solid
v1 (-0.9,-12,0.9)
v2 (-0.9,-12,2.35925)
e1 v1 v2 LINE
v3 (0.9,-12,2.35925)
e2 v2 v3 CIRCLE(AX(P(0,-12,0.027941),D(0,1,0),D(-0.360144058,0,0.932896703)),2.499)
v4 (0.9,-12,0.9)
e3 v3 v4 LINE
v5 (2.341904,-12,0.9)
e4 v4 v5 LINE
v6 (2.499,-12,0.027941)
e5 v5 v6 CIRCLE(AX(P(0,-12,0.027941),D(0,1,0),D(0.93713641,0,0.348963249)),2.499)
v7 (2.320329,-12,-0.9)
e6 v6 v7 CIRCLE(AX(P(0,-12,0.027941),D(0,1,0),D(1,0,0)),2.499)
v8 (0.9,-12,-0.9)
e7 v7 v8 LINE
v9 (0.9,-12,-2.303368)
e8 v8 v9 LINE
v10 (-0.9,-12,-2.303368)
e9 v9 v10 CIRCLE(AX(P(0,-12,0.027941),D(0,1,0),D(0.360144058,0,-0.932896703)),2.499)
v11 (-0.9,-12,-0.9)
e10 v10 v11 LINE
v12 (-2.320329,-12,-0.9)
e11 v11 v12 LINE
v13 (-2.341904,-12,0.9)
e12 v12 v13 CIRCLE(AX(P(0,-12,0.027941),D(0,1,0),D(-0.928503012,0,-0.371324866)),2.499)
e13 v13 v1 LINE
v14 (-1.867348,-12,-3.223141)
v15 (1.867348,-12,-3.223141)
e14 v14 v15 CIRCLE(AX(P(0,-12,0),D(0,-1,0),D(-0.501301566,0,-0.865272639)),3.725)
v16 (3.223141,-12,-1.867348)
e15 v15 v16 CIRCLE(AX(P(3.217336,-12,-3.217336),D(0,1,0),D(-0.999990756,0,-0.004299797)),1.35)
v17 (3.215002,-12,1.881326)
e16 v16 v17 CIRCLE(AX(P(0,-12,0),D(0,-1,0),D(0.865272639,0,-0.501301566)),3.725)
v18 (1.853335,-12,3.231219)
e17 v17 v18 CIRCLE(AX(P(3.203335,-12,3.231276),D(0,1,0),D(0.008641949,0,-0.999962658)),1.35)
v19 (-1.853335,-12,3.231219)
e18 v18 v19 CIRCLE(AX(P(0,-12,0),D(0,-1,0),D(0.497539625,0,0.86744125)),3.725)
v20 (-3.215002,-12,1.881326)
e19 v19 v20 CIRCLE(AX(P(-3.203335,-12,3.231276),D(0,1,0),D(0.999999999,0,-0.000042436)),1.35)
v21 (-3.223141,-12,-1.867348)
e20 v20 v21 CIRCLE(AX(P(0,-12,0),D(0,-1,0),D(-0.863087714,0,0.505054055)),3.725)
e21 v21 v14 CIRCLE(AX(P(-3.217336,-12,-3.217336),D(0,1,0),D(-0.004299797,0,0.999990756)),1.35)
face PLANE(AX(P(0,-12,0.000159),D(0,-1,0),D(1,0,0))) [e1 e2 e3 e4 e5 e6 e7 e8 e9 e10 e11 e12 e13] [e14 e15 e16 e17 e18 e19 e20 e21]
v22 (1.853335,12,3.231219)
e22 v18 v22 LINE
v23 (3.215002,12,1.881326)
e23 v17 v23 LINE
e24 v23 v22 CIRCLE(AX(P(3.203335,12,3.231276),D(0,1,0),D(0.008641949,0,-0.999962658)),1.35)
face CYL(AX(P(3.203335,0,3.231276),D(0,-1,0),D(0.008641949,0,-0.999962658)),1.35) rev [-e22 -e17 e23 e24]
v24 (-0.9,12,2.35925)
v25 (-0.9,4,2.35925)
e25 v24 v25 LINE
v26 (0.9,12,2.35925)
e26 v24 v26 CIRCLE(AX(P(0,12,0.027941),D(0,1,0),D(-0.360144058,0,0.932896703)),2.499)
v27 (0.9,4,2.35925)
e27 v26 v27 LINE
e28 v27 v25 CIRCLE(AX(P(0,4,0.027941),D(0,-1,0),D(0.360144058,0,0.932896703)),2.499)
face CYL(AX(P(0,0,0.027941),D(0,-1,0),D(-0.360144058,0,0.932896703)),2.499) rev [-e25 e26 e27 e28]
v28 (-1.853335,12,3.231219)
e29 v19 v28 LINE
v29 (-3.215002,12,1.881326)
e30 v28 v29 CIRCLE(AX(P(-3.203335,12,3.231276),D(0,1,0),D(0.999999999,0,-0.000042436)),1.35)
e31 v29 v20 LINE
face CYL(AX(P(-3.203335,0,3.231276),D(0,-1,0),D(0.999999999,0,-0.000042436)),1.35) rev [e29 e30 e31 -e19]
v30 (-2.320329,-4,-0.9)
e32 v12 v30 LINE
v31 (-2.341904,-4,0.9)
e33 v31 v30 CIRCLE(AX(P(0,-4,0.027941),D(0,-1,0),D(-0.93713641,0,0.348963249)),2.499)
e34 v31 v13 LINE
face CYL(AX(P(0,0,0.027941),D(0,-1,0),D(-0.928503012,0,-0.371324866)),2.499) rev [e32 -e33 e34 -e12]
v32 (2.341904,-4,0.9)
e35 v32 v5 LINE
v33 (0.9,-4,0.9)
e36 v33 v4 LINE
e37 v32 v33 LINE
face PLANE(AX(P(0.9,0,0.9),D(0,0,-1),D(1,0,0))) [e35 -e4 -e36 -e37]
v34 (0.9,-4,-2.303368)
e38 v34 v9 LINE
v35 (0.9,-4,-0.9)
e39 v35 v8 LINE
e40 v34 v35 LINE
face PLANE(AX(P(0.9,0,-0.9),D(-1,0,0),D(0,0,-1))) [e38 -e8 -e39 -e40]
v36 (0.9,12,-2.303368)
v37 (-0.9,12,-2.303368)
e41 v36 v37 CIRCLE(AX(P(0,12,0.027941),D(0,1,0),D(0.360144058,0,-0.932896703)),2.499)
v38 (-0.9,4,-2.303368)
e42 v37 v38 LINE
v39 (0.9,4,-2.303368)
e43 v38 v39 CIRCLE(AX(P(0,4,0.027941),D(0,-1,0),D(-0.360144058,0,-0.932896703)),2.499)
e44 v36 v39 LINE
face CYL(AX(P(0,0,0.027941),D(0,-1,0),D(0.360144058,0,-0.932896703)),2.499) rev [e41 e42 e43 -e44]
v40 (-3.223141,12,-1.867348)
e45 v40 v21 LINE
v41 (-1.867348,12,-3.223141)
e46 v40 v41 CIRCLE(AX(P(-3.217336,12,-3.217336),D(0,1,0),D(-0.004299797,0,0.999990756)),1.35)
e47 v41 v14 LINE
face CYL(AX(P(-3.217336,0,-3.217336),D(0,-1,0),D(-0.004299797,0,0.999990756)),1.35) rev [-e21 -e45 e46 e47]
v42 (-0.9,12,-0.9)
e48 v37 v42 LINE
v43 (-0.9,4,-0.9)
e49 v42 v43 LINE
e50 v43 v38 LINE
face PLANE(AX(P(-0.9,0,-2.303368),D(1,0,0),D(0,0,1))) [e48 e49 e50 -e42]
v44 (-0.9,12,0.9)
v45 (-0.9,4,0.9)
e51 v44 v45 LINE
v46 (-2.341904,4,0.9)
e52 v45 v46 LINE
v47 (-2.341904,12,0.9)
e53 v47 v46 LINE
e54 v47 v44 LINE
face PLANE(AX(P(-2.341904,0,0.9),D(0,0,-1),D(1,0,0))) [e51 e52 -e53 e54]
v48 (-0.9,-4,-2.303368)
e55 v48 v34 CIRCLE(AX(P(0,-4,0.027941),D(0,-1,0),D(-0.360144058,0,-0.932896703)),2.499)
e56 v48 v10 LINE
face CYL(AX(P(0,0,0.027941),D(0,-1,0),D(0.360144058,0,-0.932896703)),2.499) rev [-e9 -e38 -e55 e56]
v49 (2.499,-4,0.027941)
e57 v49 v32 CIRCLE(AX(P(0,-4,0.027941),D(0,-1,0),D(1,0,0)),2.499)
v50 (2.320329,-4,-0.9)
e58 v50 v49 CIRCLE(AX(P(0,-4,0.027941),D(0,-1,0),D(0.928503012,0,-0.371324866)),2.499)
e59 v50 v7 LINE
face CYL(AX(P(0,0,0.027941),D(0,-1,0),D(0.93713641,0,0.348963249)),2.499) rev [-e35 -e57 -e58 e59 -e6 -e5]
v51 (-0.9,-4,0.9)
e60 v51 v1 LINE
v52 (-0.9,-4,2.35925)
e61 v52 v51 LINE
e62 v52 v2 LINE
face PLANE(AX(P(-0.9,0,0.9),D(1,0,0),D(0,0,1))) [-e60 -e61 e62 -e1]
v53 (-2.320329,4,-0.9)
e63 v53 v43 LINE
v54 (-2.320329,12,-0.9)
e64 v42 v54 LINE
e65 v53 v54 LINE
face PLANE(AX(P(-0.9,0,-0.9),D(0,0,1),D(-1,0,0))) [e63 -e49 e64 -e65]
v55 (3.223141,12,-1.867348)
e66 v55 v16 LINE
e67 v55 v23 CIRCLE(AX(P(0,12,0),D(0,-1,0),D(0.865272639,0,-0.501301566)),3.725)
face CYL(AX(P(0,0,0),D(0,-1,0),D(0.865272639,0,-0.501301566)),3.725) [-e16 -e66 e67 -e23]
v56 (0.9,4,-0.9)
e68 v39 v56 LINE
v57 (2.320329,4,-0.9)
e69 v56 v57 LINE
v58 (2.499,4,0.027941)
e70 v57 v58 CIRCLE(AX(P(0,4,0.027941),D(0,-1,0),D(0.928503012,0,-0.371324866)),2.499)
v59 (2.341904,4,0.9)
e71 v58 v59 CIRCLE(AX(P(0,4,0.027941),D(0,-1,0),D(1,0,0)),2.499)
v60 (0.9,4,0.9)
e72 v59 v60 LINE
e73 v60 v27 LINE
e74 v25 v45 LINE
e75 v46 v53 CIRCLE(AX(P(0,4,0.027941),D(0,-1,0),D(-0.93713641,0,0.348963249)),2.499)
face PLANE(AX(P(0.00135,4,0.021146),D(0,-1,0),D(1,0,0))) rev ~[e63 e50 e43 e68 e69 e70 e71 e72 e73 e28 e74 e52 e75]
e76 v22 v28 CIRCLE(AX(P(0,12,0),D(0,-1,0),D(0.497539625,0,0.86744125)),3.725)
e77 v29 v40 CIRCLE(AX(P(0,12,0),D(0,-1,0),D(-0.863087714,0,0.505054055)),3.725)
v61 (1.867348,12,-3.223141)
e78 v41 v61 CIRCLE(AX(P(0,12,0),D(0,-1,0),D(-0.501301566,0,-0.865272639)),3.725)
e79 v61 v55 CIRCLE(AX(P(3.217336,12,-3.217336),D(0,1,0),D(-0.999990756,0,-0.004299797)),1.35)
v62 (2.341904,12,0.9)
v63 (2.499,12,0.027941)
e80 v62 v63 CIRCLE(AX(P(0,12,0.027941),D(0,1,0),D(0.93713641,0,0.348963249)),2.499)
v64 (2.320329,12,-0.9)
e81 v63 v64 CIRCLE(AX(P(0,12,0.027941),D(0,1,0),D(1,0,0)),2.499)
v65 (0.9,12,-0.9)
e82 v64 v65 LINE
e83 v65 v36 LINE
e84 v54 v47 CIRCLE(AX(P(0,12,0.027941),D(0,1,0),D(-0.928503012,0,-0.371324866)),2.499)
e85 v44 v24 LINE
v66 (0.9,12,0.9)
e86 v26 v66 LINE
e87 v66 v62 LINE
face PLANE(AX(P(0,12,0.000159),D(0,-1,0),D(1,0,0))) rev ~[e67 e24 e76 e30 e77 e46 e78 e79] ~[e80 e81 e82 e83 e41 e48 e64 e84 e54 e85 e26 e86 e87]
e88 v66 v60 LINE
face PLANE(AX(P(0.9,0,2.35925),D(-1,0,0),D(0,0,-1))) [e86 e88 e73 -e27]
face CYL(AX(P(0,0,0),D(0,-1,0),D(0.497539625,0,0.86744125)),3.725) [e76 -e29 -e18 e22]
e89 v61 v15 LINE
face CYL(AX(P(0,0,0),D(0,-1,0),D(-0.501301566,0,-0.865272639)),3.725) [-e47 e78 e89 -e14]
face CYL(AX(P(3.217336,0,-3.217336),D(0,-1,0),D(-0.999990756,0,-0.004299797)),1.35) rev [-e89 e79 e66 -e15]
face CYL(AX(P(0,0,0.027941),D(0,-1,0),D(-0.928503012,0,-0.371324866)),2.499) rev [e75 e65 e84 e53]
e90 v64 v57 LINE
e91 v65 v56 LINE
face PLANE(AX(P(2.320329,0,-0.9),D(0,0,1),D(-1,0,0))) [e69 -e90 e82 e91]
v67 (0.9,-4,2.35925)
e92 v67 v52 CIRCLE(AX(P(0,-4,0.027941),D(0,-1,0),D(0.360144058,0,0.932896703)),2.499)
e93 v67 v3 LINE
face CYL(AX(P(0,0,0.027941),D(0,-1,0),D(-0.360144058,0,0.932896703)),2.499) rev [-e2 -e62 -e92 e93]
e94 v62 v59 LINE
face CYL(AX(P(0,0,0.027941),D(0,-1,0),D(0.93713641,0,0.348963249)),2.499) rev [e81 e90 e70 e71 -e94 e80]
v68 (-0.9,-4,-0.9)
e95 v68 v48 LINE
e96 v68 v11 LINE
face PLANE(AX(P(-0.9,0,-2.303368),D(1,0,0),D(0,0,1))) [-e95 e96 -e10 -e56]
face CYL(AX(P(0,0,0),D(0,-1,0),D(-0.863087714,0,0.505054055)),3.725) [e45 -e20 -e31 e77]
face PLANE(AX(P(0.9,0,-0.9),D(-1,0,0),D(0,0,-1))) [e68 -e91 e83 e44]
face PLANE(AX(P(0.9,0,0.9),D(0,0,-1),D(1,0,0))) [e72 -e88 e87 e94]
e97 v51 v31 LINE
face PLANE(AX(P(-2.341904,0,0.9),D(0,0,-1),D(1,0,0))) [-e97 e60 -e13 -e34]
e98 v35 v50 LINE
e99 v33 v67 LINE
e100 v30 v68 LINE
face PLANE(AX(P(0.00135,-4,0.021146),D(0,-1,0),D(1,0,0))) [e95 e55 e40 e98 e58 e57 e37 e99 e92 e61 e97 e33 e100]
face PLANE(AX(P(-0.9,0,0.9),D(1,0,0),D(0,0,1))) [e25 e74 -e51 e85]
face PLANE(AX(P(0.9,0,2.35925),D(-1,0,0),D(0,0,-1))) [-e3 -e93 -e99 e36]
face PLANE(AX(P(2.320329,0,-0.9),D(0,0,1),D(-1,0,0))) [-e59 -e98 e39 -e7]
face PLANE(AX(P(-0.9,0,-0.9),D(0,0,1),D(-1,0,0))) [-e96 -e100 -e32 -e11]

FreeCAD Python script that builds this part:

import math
import FreeCAD as App
import Part
import Sketcher

V = App.Vector

doc = App.newDocument("Part")
params = doc.addObject("Spreadsheet::Sheet", "Params")
for row, (alias, value) in enumerate([
    ("sketch1_radius", "1.35 mm"),
    ("pad1_length", "24 mm"),
    ("pad2_length", "8 mm"),
], start=1):
    params.set(f"A{row}", alias)
    params.set(f"B{row}", "=" + value)
    params.setAlias(f"B{row}", alias)

body = doc.addObject("PartDesign::Body", "Body")

# Sketch on XZ plane
sketch1 = body.newObject("Sketcher::SketchObject", "Sketch")
sketch1.AttachmentSupport = (doc.getObject("XZ_Plane"), [""])
sketch1.MapMode = "FlatFace"
sketch1.addGeometry([
    Part.ArcOfCircle(Part.Circle(V(-3.2, 3.2, 0), V(0, 0, 1), 1.4), math.radians(-90), math.radians(0)),  # 0
    Part.ArcOfCircle(Part.Circle(V(0, 0, 0), V(0, 0, 1), 3.7), math.radians(150), math.radians(210)),  # 1
    Part.ArcOfCircle(Part.Circle(V(-3.2, -3.2, 0), V(0, 0, 1), 1.4), math.radians(0), math.radians(90)),  # 2
    Part.ArcOfCircle(Part.Circle(V(0, 0, 0), V(0, 0, 1), 3.7), math.radians(-120), math.radians(-60)),  # 3
    Part.ArcOfCircle(Part.Circle(V(3.2, -3.2, 0), V(0, 0, 1), 1.4), math.radians(90), math.radians(180)),  # 4
    Part.ArcOfCircle(Part.Circle(V(0, 0, 0), V(0, 0, 1), 3.7), math.radians(-30), math.radians(30)),  # 5
    Part.ArcOfCircle(Part.Circle(V(3.2, 3.2, 0), V(0, 0, 1), 1.4), math.radians(-180), math.radians(-90)),  # 6
    Part.ArcOfCircle(Part.Circle(V(0, 0, 0), V(0, 0, 1), 3.7), math.radians(60), math.radians(120)),  # 7
    Part.ArcOfCircle(Part.Circle(V(0, 0, 0), V(0, 0, 1), 2.5), math.radians(160), math.radians(202)),  # 8
    Part.LineSegment(V(-2.3, 0.9, 0), V(-0.9, 0.9, 0)),  # 9
    Part.LineSegment(V(-0.9, 0.9, 0), V(-0.9, 2.4, 0)),  # 10
    Part.ArcOfCircle(Part.Circle(V(0, 0, 0), V(0, 0, 1), 2.5), math.radians(69), math.radians(111)),  # 11
    Part.LineSegment(V(0.9, 2.4, 0), V(0.9, 0.9, 0)),  # 12
    Part.LineSegment(V(0.9, 0.9, 0), V(2.3, 0.9, 0)),  # 13
    Part.ArcOfCircle(Part.Circle(V(0, 0, 0), V(0, 0, 1), 2.5), math.radians(0), math.radians(20)),  # 14
    Part.ArcOfCircle(Part.Circle(V(0, 0, 0), V(0, 0, 1), 2.5), math.radians(-22), math.radians(0)),  # 15
    Part.LineSegment(V(2.3, -0.9, 0), V(0.9, -0.9, 0)),  # 16
    Part.LineSegment(V(0.9, -0.9, 0), V(0.9, -2.3, 0)),  # 17
    Part.ArcOfCircle(Part.Circle(V(0, 0, 0), V(0, 0, 1), 2.5), math.radians(-111), math.radians(-69)),  # 18
    Part.LineSegment(V(-0.9, -2.3, 0), V(-0.9, -0.9, 0)),  # 19
    Part.LineSegment(V(-0.9, -0.9, 0), V(-2.3, -0.9, 0)),  # 20
], False)
sketch1.addConstraint([
    Sketcher.Constraint("Coincident", 0, 1, 1, 1),
    Sketcher.Constraint("Coincident", 1, 2, 2, 2),
    Sketcher.Constraint("Coincident", 2, 1, 3, 1),
    Sketcher.Constraint("Coincident", 3, 2, 4, 2),
    Sketcher.Constraint("Coincident", 4, 1, 5, 1),
    Sketcher.Constraint("Coincident", 5, 2, 6, 2),
    Sketcher.Constraint("Coincident", 6, 1, 7, 1),
    Sketcher.Constraint("Coincident", 7, 2, 0, 2),
    Sketcher.Constraint("Coincident", 8, 1, 9, 1),
    Sketcher.Constraint("Coincident", 9, 2, 10, 1),
    Sketcher.Constraint("Coincident", 10, 2, 11, 2),
    Sketcher.Constraint("Coincident", 11, 1, 12, 1),
    Sketcher.Constraint("Coincident", 12, 2, 13, 1),
    Sketcher.Constraint("Coincident", 13, 2, 14, 2),
    Sketcher.Constraint("Tangent", 14, 1, 15, 2),
    Sketcher.Constraint("Coincident", 15, 1, 16, 1),
    Sketcher.Constraint("Coincident", 16, 2, 17, 1),
    Sketcher.Constraint("Coincident", 17, 2, 18, 2),
    Sketcher.Constraint("Coincident", 18, 1, 19, 1),
    Sketcher.Constraint("Coincident", 19, 2, 20, 1),
    Sketcher.Constraint("Coincident", 20, 2, 8, 2),
    Sketcher.Constraint("Horizontal", 9),
    Sketcher.Constraint("Vertical", 10),
    Sketcher.Constraint("Vertical", 12),
    Sketcher.Constraint("Horizontal", 13),
    Sketcher.Constraint("Horizontal", 16),
    Sketcher.Constraint("Vertical", 17),
    Sketcher.Constraint("Vertical", 19),
    Sketcher.Constraint("Horizontal", 20),
    Sketcher.Constraint("Coincident", 1, 3, -1, 1),
    Sketcher.Constraint("Coincident", 3, 3, -1, 1),
    Sketcher.Constraint("Coincident", 5, 3, -1, 1),
    Sketcher.Constraint("Coincident", 7, 3, -1, 1),
    Sketcher.Constraint("Coincident", 11, 3, 8, 3),
    Sketcher.Constraint("Coincident", 14, 3, 8, 3),
    Sketcher.Constraint("Coincident", 18, 3, 8, 3),
    Sketcher.Constraint("Equal", 0, 2),
    Sketcher.Constraint("Equal", 1, 3),
    Sketcher.Constraint("Equal", 2, 4),
    Sketcher.Constraint("Equal", 3, 5),
    Sketcher.Constraint("Equal", 4, 6),
    Sketcher.Constraint("Equal", 5, 7),
    Sketcher.Constraint("Equal", 8, 11),
    Sketcher.Constraint("Equal", 11, 14),
    Sketcher.Constraint("Equal", 14, 15),
    Sketcher.Constraint("Equal", 15, 18),
    Sketcher.Constraint("Symmetric", 9, 2, 16, 2, -1, 1),
    Sketcher.Constraint("Symmetric", 12, 2, 19, 2, -1, 1),
    Sketcher.Constraint("Symmetric", 2, 3, 4, 3, -2),
    Sketcher.Constraint("Symmetric", 0, 3, 6, 3, -2),
    Sketcher.Constraint("Symmetric", 10, 2, 11, 1, -2),
    Sketcher.Constraint("Horizontal", 9, 2, 12, 2),
    Sketcher.Constraint("Horizontal", 18, 3, 14, 1),
    Sketcher.Constraint("Radius", 0, 1.35),
    Sketcher.Constraint("Radius", 1, 3.725),
    Sketcher.Constraint("Radius", 8, 2.499),
    Sketcher.Constraint("DistanceY", -1, 1, 8, 1, 0.9),
    Sketcher.Constraint("DistanceX", 9, 2, -1, 1, 0.9),
    Sketcher.Constraint("DistanceX", 0, 1, -1, 1, 3.215002),
    Sketcher.Constraint("DistanceX", 2, 3, 0, 3, 0.014001),
    Sketcher.Constraint("DistanceX", 16, 2, 16, 1, 1.420329),
    Sketcher.Constraint("DistanceX", 1, 2, -1, 1, 3.223141),
    Sketcher.Constraint("DistanceX", 2, 1, -1, 1, 1.867348),
])
sketch1.setExpression("Constraints[53]", "Params.sketch1_radius")
pad1 = body.newObject("PartDesign::Pad", "Pad")
pad1.Profile = sketch1
pad1.setExpression("Length", "Params.pad1_length")
pad1.Midplane = True

# Sketch on XZ plane
sketch2 = body.newObject("Sketcher::SketchObject", "Sketch001")
sketch2.AttachmentSupport = (doc.getObject("XZ_Plane"), [""])
sketch2.MapMode = "FlatFace"
sketch2.addGeometry([
    Part.ArcOfCircle(Part.Circle(V(0, 0, 0), V(0, 0, 1), 2.5), math.radians(69), math.radians(111)),  # 0
    Part.LineSegment(V(-0.9, 2.4, 0), V(-0.9, 0.9, 0)),  # 1
    Part.LineSegment(V(-0.9, 0.9, 0), V(-2.3, 0.9, 0)),  # 2
    Part.ArcOfCircle(Part.Circle(V(0, 0, 0), V(0, 0, 1), 2.5), math.radians(160), math.radians(202)),  # 3
    Part.LineSegment(V(-2.3, -0.9, 0), V(-0.9, -0.9, 0)),  # 4
    Part.LineSegment(V(-0.9, -0.9, 0), V(-0.9, -2.3, 0)),  # 5
    Part.ArcOfCircle(Part.Circle(V(0, 0, 0), V(0, 0, 1), 2.5), math.radians(-111), math.radians(-69)),  # 6
    Part.LineSegment(V(0.9, -2.3, 0), V(0.9, -0.9, 0)),  # 7
    Part.LineSegment(V(0.9, -0.9, 0), V(2.3, -0.9, 0)),  # 8
    Part.ArcOfCircle(Part.Circle(V(0, 0, 0), V(0, 0, 1), 2.5), math.radians(-22), math.radians(0)),  # 9
    Part.ArcOfCircle(Part.Circle(V(0, 0, 0), V(0, 0, 1), 2.5), math.radians(0), math.radians(20)),  # 10
    Part.LineSegment(V(2.3, 0.9, 0), V(0.9, 0.9, 0)),  # 11
    Part.LineSegment(V(0.9, 0.9, 0), V(0.9, 2.4, 0)),  # 12
], False)
sketch2.addConstraint([
    Sketcher.Constraint("Coincident", 0, 2, 1, 1),
    Sketcher.Constraint("Coincident", 1, 2, 2, 1),
    Sketcher.Constraint("Coincident", 2, 2, 3, 1),
    Sketcher.Constraint("Coincident", 3, 2, 4, 1),
    Sketcher.Constraint("Coincident", 4, 2, 5, 1),
    Sketcher.Constraint("Coincident", 5, 2, 6, 1),
    Sketcher.Constraint("Coincident", 6, 2, 7, 1),
    Sketcher.Constraint("Coincident", 7, 2, 8, 1),
    Sketcher.Constraint("Coincident", 8, 2, 9, 1),
    Sketcher.Constraint("Tangent", 9, 2, 10, 1),
    Sketcher.Constraint("Coincident", 10, 2, 11, 1),
    Sketcher.Constraint("Coincident", 11, 2, 12, 1),
    Sketcher.Constraint("Coincident", 12, 2, 0, 1),
    Sketcher.Constraint("Vertical", 1),
    Sketcher.Constraint("Horizontal", 2),
    Sketcher.Constraint("Horizontal", 4),
    Sketcher.Constraint("Vertical", 5),
    Sketcher.Constraint("Vertical", 7),
    Sketcher.Constraint("Horizontal", 8),
    Sketcher.Constraint("Horizontal", 11),
    Sketcher.Constraint("Vertical", 12),
    Sketcher.Constraint("Coincident", 3, 3, 0, 3),
    Sketcher.Constraint("Coincident", 6, 3, 0, 3),
    Sketcher.Constraint("Coincident", 9, 3, 0, 3),
    Sketcher.Constraint("Equal", 0, 3),
    Sketcher.Constraint("Equal", 3, 6),
    Sketcher.Constraint("Equal", 6, 9),
    Sketcher.Constraint("Equal", 9, 10),
    Sketcher.Constraint("Symmetric", 1, 2, 7, 2, -1, 1),
    Sketcher.Constraint("Symmetric", 4, 2, 11, 2, -1, 1),
    Sketcher.Constraint("Symmetric", 5, 2, 6, 2, -2),
    Sketcher.Constraint("Horizontal", 4, 2, 7, 2),
    Sketcher.Constraint("Horizontal", 10, 3, 9, 2),
    Sketcher.Constraint("Radius", 0, 2.499),
    Sketcher.Constraint("DistanceX", 0, 2, -1, 1, 0.9),
    Sketcher.Constraint("DistanceY", -1, 1, 1, 2, 0.9),
    Sketcher.Constraint("DistanceX", 4, 1, 4, 2, 1.420329),
])
pad2 = body.newObject("PartDesign::Pad", "Pad001")
pad2.Profile = sketch2
pad2.setExpression("Length", "Params.pad2_length")
pad2.Midplane = True

doc.recompute()
